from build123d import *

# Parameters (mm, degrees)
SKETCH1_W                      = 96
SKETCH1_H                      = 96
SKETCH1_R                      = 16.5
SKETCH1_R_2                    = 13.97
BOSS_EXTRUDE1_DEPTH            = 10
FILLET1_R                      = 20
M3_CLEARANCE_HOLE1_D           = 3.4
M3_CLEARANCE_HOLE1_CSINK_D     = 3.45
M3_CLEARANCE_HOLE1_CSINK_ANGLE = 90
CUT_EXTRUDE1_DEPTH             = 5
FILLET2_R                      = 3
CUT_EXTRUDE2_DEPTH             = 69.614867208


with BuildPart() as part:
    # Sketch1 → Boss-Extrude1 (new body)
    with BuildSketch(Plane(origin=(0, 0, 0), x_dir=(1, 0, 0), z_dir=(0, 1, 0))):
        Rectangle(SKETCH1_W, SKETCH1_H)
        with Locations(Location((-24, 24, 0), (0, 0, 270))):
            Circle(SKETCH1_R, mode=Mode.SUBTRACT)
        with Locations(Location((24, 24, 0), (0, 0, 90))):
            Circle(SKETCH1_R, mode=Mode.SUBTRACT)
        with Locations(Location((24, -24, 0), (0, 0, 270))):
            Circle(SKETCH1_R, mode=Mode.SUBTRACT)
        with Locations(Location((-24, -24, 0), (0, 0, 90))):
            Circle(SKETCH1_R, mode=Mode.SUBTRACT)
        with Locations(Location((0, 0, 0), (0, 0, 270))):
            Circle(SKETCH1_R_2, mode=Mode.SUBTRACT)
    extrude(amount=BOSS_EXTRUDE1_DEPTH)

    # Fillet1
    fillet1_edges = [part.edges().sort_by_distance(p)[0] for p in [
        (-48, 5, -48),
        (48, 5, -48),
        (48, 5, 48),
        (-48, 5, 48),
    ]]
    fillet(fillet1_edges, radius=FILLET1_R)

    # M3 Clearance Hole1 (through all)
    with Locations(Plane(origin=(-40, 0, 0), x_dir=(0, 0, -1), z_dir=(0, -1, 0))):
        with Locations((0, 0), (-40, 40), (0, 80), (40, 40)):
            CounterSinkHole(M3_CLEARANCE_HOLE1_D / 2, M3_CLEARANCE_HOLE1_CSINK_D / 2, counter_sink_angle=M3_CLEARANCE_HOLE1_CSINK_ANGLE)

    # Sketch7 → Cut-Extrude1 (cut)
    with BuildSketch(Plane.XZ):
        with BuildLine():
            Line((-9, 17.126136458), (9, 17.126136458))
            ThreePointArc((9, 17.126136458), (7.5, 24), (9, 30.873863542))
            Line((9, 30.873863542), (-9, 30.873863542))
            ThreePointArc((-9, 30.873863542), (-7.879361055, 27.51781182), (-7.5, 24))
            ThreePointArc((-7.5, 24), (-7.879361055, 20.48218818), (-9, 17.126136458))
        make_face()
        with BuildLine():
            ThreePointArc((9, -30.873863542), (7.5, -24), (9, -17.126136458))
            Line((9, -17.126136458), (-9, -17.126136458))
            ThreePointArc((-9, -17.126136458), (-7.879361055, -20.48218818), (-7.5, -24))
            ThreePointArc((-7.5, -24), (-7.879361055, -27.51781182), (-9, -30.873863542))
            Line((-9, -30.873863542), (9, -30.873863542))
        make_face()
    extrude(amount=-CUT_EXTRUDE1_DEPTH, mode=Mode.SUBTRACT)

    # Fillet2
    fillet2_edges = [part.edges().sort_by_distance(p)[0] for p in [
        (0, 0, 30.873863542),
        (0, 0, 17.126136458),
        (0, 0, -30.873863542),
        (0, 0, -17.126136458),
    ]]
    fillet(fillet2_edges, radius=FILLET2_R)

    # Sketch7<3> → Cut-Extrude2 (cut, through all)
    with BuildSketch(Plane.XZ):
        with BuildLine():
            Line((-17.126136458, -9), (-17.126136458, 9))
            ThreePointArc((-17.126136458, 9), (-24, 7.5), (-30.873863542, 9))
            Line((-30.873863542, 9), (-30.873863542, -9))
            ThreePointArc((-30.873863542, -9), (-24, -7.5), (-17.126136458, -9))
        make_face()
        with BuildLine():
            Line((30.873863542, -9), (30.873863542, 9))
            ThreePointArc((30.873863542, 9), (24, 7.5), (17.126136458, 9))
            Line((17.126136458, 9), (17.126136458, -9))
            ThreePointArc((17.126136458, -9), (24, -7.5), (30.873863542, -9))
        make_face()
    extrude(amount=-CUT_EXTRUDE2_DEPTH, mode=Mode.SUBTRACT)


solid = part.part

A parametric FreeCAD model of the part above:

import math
import FreeCAD as App
import Part
import Sketcher
from FreeCAD import Vector
Q = App.Units.Quantity


def edges_at(feature, points):
    """Names of the edges that pass closest to the given points."""
    edges = feature.Shape.Edges
    near = lambda p: min(range(len(edges)), key=lambda i: edges[i].distToShape(Part.Vertex(*p))[0])
    return sorted({f"Edge{near(p) + 1}" for p in points})

doc = App.newDocument("Part")
params = doc.addObject("Spreadsheet::Sheet", "Params")
for row, (alias, value) in enumerate([
    ("sketch1_diameter", "33 mm"),
    ("sketch1_diameter2", "27.94 mm"),
    ("sketch1_width", "96 mm"),
    ("pad1_length", "10 mm"),
    ("fillet_radius", "20 mm"),
    ("sketch2_diameter", "3.4 mm"),
    ("hole_diameter", "3.4 mm"),
    ("hole_csink_diameter", "3.45 mm"),
    ("sketch3_radius", "16.5 mm"),
    ("sketch3_width", "18 mm"),
    ("pocket1_length", "5 mm"),
    ("fillet2_radius", "3 mm"),
    ("sketch4_radius", "16.5 mm"),
    ("sketch4_height", "18 mm"),
], start=1):
    params.set(f"A{row}", alias)
    params.set(f"B{row}", "=" + value)
    params.setAlias(f"B{row}", alias)

body = doc.addObject("PartDesign::Body", "Body")

sketch1 = doc.addObject("Sketcher::SketchObject", "Sketch")
body.addObject(sketch1)
sketch1.AttachmentSupport = (doc.XZ_Plane, [""])
sketch1.MapMode = "FlatFace"
sketch1.addGeometry([
    Part.LineSegment(Vector(-48, -48, 0), Vector(-48, 48, 0)),
    Part.LineSegment(Vector(-48, 48, 0), Vector(48, 48, 0)),
    Part.LineSegment(Vector(48, 48, 0), Vector(48, -48, 0)),
    Part.LineSegment(Vector(48, -48, 0), Vector(-48, -48, 0)),
    Part.Circle(Vector(-24, 24, 0), Vector(0, 0, 1), 16.5),
    Part.Circle(Vector(24, 24, 0), Vector(0, 0, 1), 16.5),
    Part.Circle(Vector(-24, -24, 0), Vector(0, 0, 1), 16.5),
    Part.Circle(Vector(0, 0, 0), Vector(0, 0, 1), 13.97),
    Part.Circle(Vector(24, -24, 0), Vector(0, 0, 1), 16.5),
], False)
sketch1.addConstraint([
    Sketcher.Constraint("Coincident", 0, 2, 1, 1),
    Sketcher.Constraint("Coincident", 1, 2, 2, 1),
    Sketcher.Constraint("Coincident", 2, 2, 3, 1),
    Sketcher.Constraint("Coincident", 3, 2, 0, 1),
    Sketcher.Constraint("Vertical", 0),
    Sketcher.Constraint("Horizontal", 1),
    Sketcher.Constraint("Vertical", 2),
    Sketcher.Constraint("Horizontal", 3),
    Sketcher.Constraint("Coincident", 7, 3, -1, 1),
    Sketcher.Constraint("Equal", 4, 5),
    Sketcher.Constraint("Equal", 5, 6),
    Sketcher.Constraint("Equal", 6, 8),
    Sketcher.Constraint("Symmetric", 5, 3, 6, 3, -1, 1),
    Sketcher.Constraint("Symmetric", 4, 3, 8, 3, -1, 1),
    Sketcher.Constraint("Symmetric", 0, 2, 2, 2, -1, 1),
    Sketcher.Constraint("Symmetric", 4, 3, 5, 3, -2),
    Sketcher.Constraint("Equal", 3, 0),
    Sketcher.Constraint("Diameter", 4, Q("33 mm")),
    Sketcher.Constraint("Diameter", 7, Q("27.94 mm")),
    Sketcher.Constraint("DistanceX", 1, 1, 1, 2, Q("96 mm")),
    Sketcher.Constraint("DistanceX", 4, 3, -1, 1, Q("24 mm")),
    Sketcher.Constraint("DistanceY", -1, 1, 4, 3, Q("24 mm")),
])
sketch1.setExpression("Constraints[17]", "Params.sketch1_diameter")
sketch1.setExpression("Constraints[18]", "Params.sketch1_diameter2")
sketch1.setExpression("Constraints[19]", "Params.sketch1_width")
pad1 = doc.addObject("PartDesign::Pad", "Pad")
body.addObject(pad1)
pad1.Profile = sketch1
pad1.setExpression("Length", "Params.pad1_length")
pad1.Reversed = True
doc.recompute()

fillet = doc.addObject("PartDesign::Fillet", "Fillet")
body.addObject(fillet)
fillet.Base = (pad1, edges_at(pad1, [
    (-48, 5, -48),
    (48, 5, -48),
    (48, 5, 48),
    (-48, 5, 48),
]))
fillet.setExpression("Radius", "Params.fillet_radius")

sketch2 = doc.addObject("Sketcher::SketchObject", "Sketch001")
body.addObject(sketch2)
sketch2.AttachmentSupport = (doc.XZ_Plane, [""])
sketch2.MapMode = "FlatFace"
sketch2.addGeometry([
    Part.Circle(Vector(-40, 0, 0), Vector(0, 0, 1), 1.7),
    Part.Circle(Vector(0, 40, 0), Vector(0, 0, 1), 1.7),
    Part.Circle(Vector(40, 0, 0), Vector(0, 0, 1), 1.7),
    Part.Circle(Vector(0, -40, 0), Vector(0, 0, 1), 1.7),
], False)
sketch2.addConstraint([
    Sketcher.Constraint("Equal", 0, 1),
    Sketcher.Constraint("Equal", 1, 2),
    Sketcher.Constraint("Equal", 2, 3),
    Sketcher.Constraint("Symmetric", 0, 3, 2, 3, -1, 1),
    Sketcher.Constraint("Symmetric", 1, 3, 3, 3, -1, 1),
    Sketcher.Constraint("PointOnObject", 0, 3, -1),
    Sketcher.Constraint("PointOnObject", 1, 3, -2),
    Sketcher.Constraint("Diameter", 0, Q("3.4 mm")),
    Sketcher.Constraint("DistanceX", 0, 3, -1, 1, Q("40 mm")),
    Sketcher.Constraint("DistanceY", -1, 1, 1, 3, Q("40 mm")),
])
sketch2.setExpression("Constraints[7]", "Params.sketch2_diameter")
doc.recompute()
hole = doc.addObject("PartDesign::Hole", "Hole")
body.addObject(hole)
hole.Profile = sketch2
hole.ThreadType = "None"
hole.setExpression("Diameter", "Params.hole_diameter")
hole.DepthType = "ThroughAll"
hole.HoleCutType = "Countersink"
hole.setExpression("HoleCutDiameter", "Params.hole_csink_diameter")
hole.HoleCutCountersinkAngle = 90

sketch3 = doc.addObject("Sketcher::SketchObject", "Sketch002")
body.addObject(sketch3)
sketch3.AttachmentSupport = (doc.XZ_Plane, [""])
sketch3.MapMode = "FlatFace"
sketch3.addGeometry([
    Part.LineSegment(Vector(-9, 17.126136, 0), Vector(9, 17.126136, 0)),
    Part.ArcOfCircle(Part.Circle(Vector(24, 24, 0), Vector(0, 0, 1), 16.5), math.radians(155.380023), math.radians(204.619977)),
    Part.LineSegment(Vector(9, 30.873864, 0), Vector(-9, 30.873864, 0)),
    Part.ArcOfCircle(Part.Circle(Vector(-24, 24, 0), Vector(0, 0, 1), 16.5), math.radians(0), math.radians(24.619977)),
    Part.ArcOfCircle(Part.Circle(Vector(-24, 24, 0), Vector(0, 0, 1), 16.5), math.radians(-24.619977), math.radians(0)),
    Part.ArcOfCircle(Part.Circle(Vector(24, -24, 0), Vector(0, 0, 1), 16.5), math.radians(155.380023), math.radians(204.619977)),
    Part.LineSegment(Vector(9, -17.126136, 0), Vector(-9, -17.126136, 0)),
    Part.ArcOfCircle(Part.Circle(Vector(-24, -24, 0), Vector(0, 0, 1), 16.5), math.radians(0), math.radians(24.619977)),
    Part.ArcOfCircle(Part.Circle(Vector(-24, -24, 0), Vector(0, 0, 1), 16.5), math.radians(-24.619977), math.radians(0)),
    Part.LineSegment(Vector(-9, -30.873864, 0), Vector(9, -30.873864, 0)),
], False)
sketch3.addConstraint([
    Sketcher.Constraint("Coincident", 0, 2, 1, 2),
    Sketcher.Constraint("Coincident", 1, 1, 2, 1),
    Sketcher.Constraint("Coincident", 2, 2, 3, 2),
    Sketcher.Constraint("Tangent", 3, 1, 4, 2),
    Sketcher.Constraint("Coincident", 4, 1, 0, 1),
    Sketcher.Constraint("Coincident", 5, 1, 6, 1),
    Sketcher.Constraint("Coincident", 6, 2, 7, 2),
    Sketcher.Constraint("Tangent", 7, 1, 8, 2),
    Sketcher.Constraint("Coincident", 8, 1, 9, 1),
    Sketcher.Constraint("Coincident", 9, 2, 5, 2),
    Sketcher.Constraint("Horizontal", 0),
    Sketcher.Constraint("Horizontal", 2),
    Sketcher.Constraint("Horizontal", 6),
    Sketcher.Constraint("Horizontal", 9),
    Sketcher.Constraint("Equal", 1, 3),
    Sketcher.Constraint("Equal", 3, 4),
    Sketcher.Constraint("Equal", 4, 5),
    Sketcher.Constraint("Equal", 5, 7),
    Sketcher.Constraint("Equal", 7, 8),
    Sketcher.Constraint("Symmetric", 3, 3, 5, 3, -1, 1),
    Sketcher.Constraint("Symmetric", 1, 3, 7, 3, -1, 1),
    Sketcher.Constraint("Symmetric", 1, 3, 3, 3, -2),
    Sketcher.Constraint("Horizontal", 4, 3, 3, 1),
    Sketcher.Constraint("Horizontal", 8, 3, 7, 1),
    Sketcher.Constraint("Vertical", 0, 2, 1, 1),
    Sketcher.Constraint("Vertical", 1, 1, 5, 1),
    Sketcher.Constraint("Vertical", 6, 2, 8, 1),
    Sketcher.Constraint("Radius", 1, Q("16.5 mm")),
    Sketcher.Constraint("DistanceX", 0, 1, 0, 2, Q("18 mm")),
    Sketcher.Constraint("DistanceX", -1, 1, 1, 3, Q("24 mm")),
    Sketcher.Constraint("DistanceY", -1, 1, 1, 3, Q("24 mm")),
])
sketch3.setExpression("Constraints[27]", "Params.sketch3_radius")
sketch3.setExpression("Constraints[28]", "Params.sketch3_width")
pocket1 = doc.addObject("PartDesign::Pocket", "Pocket")
body.addObject(pocket1)
pocket1.Profile = sketch3
pocket1.setExpression("Length", "Params.pocket1_length")
doc.recompute()

fillet2 = doc.addObject("PartDesign::Fillet", "Fillet001")
body.addObject(fillet2)
fillet2.Base = (pocket1, edges_at(pocket1, [
    (0, 0, 30.874),
    (0, 0, 17.126),
    (0, 0, -30.874),
    (0, 0, -17.126),
]))
fillet2.setExpression("Radius", "Params.fillet2_radius")

sketch4 = doc.addObject("Sketcher::SketchObject", "Sketch003")
body.addObject(sketch4)
sketch4.AttachmentSupport = (doc.XZ_Plane, [""])
sketch4.MapMode = "FlatFace"
sketch4.addGeometry([
    Part.LineSegment(Vector(-17.126136, -9, 0), Vector(-17.126136, 9, 0)),
    Part.ArcOfCircle(Part.Circle(Vector(-24, 24, 0), Vector(0, 0, 1), 16.5), math.radians(-114.619977), math.radians(-65.380023)),
    Part.LineSegment(Vector(-30.873864, 9, 0), Vector(-30.873864, -9, 0)),
    Part.ArcOfCircle(Part.Circle(Vector(-24, -24, 0), Vector(0, 0, 1), 16.5), math.radians(65.380023), math.radians(114.619977)),
    Part.LineSegment(Vector(30.873864, -9, 0), Vector(30.873864, 9, 0)),
    Part.ArcOfCircle(Part.Circle(Vector(24, 24, 0), Vector(0, 0, 1), 16.5), math.radians(-114.619977), math.radians(-65.380023)),
    Part.LineSegment(Vector(17.126136, 9, 0), Vector(17.126136, -9, 0)),
    Part.ArcOfCircle(Part.Circle(Vector(24, -24, 0), Vector(0, 0, 1), 16.5), math.radians(65.380023), math.radians(114.619977)),
], False)
sketch4.addConstraint([
    Sketcher.Constraint("Coincident", 0, 2, 1, 2),
    Sketcher.Constraint("Coincident", 1, 1, 2, 1),
    Sketcher.Constraint("Coincident", 2, 2, 3, 2),
    Sketcher.Constraint("Coincident", 3, 1, 0, 1),
    Sketcher.Constraint("Coincident", 4, 2, 5, 2),
    Sketcher.Constraint("Coincident", 5, 1, 6, 1),
    Sketcher.Constraint("Coincident", 6, 2, 7, 2),
    Sketcher.Constraint("Coincident", 7, 1, 4, 1),
    Sketcher.Constraint("Vertical", 0),
    Sketcher.Constraint("Vertical", 2),
    Sketcher.Constraint("Vertical", 4),
    Sketcher.Constraint("Vertical", 6),
    Sketcher.Constraint("Equal", 1, 3),
    Sketcher.Constraint("Equal", 3, 5),
    Sketcher.Constraint("Equal", 5, 7),
    Sketcher.Constraint("Symmetric", 3, 3, 5, 3, -1, 1),
    Sketcher.Constraint("Symmetric", 1, 3, 7, 3, -1, 1),
    Sketcher.Constraint("Symmetric", 1, 3, 5, 3, -2),
    Sketcher.Constraint("Horizontal", 0, 2, 1, 1),
    Sketcher.Constraint("Horizontal", 1, 1, 4, 2),
    Sketcher.Constraint("Horizontal", 4, 2, 5, 1),
    Sketcher.Constraint("Radius", 1, Q("16.5 mm")),
    Sketcher.Constraint("DistanceY", 0, 1, 0, 2, Q("18 mm")),
    Sketcher.Constraint("DistanceX", 1, 3, -1, 1, Q("24 mm")),
    Sketcher.Constraint("DistanceY", -1, 1, 1, 3, Q("24 mm")),
])
sketch4.setExpression("Constraints[21]", "Params.sketch4_radius")
sketch4.setExpression("Constraints[22]", "Params.sketch4_height")
pocket2 = doc.addObject("PartDesign::Pocket", "Pocket001")
body.addObject(pocket2)
pocket2.Profile = sketch4
pocket2.Type = "ThroughAll"

doc.recompute()
